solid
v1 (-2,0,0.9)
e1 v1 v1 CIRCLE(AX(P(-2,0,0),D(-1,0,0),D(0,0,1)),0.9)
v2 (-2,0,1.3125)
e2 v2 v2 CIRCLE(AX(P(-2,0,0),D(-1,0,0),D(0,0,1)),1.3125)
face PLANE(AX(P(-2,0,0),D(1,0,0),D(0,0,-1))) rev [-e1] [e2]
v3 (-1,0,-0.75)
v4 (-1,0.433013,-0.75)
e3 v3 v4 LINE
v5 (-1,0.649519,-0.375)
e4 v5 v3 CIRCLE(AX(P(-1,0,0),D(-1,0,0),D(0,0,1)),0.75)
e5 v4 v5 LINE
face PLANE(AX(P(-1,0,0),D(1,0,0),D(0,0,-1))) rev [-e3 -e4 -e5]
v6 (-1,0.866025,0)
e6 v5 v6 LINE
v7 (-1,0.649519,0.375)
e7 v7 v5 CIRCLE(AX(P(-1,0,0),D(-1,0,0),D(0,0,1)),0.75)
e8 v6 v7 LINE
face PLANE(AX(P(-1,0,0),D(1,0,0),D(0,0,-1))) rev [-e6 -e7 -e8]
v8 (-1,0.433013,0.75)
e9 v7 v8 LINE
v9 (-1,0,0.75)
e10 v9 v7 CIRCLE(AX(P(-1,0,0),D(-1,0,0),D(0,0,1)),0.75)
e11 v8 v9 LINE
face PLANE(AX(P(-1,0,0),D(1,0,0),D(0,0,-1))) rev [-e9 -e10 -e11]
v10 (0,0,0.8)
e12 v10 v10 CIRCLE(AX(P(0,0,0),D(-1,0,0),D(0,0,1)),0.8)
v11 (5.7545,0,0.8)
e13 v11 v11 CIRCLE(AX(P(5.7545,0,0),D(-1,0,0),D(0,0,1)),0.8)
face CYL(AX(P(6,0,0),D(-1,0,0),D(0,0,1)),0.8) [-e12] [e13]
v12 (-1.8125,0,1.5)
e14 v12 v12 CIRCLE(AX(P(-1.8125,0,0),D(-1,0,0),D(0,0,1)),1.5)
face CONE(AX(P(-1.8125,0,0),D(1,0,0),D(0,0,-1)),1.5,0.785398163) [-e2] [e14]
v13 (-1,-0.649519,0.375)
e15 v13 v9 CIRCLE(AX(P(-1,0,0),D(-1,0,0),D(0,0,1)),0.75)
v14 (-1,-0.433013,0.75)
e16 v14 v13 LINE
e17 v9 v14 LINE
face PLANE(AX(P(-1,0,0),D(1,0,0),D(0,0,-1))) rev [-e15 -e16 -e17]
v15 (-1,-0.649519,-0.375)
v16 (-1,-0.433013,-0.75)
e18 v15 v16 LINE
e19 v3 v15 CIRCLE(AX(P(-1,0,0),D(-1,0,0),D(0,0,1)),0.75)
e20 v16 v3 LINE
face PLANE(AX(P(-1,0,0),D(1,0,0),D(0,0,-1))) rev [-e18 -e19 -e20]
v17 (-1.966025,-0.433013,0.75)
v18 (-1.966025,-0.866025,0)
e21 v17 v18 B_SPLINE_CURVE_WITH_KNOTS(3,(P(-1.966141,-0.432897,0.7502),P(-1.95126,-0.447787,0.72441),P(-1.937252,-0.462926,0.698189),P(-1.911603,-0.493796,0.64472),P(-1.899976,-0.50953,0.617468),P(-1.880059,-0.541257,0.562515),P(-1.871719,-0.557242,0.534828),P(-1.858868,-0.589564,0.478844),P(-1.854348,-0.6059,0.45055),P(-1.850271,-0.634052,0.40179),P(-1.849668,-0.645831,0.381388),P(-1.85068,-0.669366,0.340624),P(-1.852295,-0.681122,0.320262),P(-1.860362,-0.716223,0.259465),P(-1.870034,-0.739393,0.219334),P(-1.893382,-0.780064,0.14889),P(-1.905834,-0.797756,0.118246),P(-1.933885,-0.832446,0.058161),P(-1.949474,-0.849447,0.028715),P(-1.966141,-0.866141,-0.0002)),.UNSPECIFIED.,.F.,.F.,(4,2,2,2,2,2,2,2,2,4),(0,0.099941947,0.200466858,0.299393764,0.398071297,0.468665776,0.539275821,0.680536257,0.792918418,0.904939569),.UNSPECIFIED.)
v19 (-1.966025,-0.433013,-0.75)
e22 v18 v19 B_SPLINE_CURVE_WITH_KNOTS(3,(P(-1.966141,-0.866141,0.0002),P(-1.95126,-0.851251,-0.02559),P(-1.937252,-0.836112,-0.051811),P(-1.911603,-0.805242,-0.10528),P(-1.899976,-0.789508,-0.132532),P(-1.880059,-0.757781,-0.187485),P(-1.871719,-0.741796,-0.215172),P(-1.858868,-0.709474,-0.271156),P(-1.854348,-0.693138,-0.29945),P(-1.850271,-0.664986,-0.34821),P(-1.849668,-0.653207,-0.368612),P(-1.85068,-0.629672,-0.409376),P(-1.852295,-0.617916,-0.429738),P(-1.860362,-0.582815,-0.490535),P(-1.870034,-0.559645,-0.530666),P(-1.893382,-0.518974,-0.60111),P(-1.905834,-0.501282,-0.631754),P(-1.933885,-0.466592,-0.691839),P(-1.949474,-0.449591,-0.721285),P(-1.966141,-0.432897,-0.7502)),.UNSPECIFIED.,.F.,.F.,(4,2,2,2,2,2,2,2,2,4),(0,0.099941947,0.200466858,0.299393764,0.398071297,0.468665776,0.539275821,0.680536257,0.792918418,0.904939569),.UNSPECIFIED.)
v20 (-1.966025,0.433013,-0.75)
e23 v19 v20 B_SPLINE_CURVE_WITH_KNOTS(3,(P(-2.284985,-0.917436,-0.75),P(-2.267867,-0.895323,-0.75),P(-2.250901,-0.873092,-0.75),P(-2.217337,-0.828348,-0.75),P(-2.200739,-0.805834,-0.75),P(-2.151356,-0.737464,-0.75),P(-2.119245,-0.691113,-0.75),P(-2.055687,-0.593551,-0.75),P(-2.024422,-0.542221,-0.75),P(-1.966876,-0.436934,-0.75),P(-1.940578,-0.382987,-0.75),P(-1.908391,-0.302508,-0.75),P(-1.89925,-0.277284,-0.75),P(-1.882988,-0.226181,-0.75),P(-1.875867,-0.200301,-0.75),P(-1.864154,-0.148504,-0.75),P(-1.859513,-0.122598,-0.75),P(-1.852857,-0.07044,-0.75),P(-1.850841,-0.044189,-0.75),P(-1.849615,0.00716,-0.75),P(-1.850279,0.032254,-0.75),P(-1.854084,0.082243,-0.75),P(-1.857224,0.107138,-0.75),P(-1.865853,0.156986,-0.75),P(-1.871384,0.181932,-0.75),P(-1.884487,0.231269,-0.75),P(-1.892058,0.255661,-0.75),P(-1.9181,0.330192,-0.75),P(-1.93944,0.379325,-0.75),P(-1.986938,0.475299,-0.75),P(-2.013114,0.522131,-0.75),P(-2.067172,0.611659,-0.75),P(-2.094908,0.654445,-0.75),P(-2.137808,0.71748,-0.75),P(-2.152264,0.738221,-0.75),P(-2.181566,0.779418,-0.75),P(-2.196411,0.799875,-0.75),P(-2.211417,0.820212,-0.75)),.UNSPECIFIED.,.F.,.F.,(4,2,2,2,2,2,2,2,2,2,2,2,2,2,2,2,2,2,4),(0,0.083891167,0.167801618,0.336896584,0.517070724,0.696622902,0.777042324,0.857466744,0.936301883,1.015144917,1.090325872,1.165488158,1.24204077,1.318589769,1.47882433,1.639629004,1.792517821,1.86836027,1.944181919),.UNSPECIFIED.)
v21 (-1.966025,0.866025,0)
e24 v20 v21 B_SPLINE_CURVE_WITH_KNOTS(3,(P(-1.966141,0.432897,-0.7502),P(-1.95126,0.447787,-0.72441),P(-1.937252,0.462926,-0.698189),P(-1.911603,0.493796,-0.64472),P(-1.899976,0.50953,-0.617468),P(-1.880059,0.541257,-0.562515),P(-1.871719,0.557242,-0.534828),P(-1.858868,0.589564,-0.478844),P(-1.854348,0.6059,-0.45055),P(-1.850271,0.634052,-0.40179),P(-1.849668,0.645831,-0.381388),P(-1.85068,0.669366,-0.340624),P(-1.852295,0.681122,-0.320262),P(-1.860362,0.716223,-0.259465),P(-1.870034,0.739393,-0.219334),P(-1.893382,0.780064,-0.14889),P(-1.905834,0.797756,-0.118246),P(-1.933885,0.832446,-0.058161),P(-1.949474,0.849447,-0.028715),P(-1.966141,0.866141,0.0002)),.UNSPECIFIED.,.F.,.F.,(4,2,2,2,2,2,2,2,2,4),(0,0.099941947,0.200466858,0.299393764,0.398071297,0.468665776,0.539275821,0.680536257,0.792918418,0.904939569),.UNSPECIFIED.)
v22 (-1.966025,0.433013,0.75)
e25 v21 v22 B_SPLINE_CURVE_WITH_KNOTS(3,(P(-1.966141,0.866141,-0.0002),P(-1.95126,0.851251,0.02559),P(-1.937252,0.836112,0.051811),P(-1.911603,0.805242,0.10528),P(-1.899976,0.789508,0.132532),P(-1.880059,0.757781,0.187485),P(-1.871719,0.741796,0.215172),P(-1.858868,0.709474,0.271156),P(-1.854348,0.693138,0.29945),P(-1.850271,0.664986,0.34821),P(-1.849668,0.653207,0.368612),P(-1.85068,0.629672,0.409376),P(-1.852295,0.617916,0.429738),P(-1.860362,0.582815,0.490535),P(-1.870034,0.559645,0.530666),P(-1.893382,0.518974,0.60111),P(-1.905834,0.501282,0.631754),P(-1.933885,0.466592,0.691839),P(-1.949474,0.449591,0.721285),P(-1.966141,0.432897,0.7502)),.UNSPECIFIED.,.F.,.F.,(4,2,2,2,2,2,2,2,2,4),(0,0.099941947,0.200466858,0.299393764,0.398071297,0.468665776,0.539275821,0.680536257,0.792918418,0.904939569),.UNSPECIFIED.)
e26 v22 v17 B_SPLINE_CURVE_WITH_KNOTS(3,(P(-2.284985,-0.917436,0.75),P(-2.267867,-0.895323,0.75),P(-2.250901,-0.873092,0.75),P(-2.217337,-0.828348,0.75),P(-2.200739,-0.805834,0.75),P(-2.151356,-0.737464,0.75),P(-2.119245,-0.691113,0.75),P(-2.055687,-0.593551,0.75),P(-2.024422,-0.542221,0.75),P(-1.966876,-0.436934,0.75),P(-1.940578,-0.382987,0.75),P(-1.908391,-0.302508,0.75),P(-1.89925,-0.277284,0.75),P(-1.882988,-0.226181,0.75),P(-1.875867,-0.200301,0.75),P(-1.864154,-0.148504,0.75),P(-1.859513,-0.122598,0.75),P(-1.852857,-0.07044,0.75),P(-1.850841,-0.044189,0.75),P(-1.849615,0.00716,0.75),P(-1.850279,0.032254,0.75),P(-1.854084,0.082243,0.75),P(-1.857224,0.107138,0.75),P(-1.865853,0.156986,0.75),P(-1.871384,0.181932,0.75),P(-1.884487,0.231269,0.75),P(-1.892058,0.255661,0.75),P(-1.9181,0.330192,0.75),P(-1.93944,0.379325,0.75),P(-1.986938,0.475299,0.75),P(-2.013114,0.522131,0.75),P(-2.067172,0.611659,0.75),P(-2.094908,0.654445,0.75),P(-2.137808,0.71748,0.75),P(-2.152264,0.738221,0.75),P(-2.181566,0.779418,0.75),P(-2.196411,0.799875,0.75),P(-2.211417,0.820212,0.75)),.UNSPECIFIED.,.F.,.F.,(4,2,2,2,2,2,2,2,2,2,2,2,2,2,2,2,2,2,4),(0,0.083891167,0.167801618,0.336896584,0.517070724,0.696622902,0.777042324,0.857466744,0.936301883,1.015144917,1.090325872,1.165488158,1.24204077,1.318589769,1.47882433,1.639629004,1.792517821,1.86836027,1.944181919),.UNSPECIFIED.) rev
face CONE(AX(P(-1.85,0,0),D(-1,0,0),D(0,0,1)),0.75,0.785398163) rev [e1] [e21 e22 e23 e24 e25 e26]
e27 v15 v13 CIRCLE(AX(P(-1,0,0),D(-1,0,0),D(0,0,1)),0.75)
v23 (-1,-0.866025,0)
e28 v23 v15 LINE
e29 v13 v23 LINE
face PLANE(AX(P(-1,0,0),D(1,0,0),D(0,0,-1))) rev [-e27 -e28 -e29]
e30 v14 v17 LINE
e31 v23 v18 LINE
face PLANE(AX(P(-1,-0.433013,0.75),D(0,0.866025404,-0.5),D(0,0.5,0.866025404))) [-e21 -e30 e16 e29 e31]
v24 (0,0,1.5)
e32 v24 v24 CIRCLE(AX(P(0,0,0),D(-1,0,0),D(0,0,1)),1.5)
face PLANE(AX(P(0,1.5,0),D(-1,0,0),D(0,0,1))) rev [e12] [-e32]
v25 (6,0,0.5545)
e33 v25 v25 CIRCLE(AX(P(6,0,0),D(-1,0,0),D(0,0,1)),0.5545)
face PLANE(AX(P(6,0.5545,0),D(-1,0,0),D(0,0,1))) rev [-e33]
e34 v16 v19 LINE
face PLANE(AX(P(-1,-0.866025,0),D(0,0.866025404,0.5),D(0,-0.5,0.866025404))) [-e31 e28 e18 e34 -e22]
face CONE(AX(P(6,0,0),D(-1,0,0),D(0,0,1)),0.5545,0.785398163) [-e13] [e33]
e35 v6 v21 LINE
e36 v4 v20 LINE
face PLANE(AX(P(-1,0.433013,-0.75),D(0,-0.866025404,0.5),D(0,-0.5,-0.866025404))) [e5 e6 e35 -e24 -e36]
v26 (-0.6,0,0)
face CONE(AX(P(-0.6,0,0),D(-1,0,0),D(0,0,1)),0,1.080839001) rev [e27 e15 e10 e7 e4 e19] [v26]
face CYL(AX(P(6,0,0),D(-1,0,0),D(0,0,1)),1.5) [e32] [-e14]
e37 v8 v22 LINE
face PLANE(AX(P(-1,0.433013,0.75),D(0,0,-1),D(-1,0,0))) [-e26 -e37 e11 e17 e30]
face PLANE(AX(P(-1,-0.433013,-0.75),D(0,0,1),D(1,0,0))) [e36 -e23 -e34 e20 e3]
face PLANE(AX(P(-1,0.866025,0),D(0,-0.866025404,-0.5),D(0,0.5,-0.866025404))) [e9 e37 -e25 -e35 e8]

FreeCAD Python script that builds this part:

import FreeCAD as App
import Part
import Sketcher
from FreeCAD import Vector
Q = App.Units.Quantity

doc = App.newDocument("Part")
body = doc.addObject("PartDesign::Body", "Body")

# Sketch on XY plane
sketch1 = doc.addObject("Sketcher::SketchObject", "Sketch")
body.addObject(sketch1)
sketch1.AttachmentSupport = (doc.XY_Plane, [""])
sketch1.MapMode = "FlatFace"
sketch1.addGeometry(Part.LineSegment(Vector(-2, 1.31, 0), Vector(-2, 0, 0)), False)
sketch1.addGeometry(Part.LineSegment(Vector(-2, 0, 0), Vector(6, 0, 0)), False)
sketch1.addGeometry(Part.LineSegment(Vector(6, 0, 0), Vector(6, 0.55, 0)), False)
sketch1.addGeometry(Part.LineSegment(Vector(6, 0.55, 0), Vector(5.75, 0.8, 0)), False)
sketch1.addGeometry(Part.LineSegment(Vector(5.75, 0.8, 0), Vector(0, 0.8, 0)), False)
sketch1.addGeometry(Part.LineSegment(Vector(0, 0.8, 0), Vector(0, 1.5, 0)), False)
sketch1.addGeometry(Part.LineSegment(Vector(0, 1.5, 0), Vector(-1.81, 1.5, 0)), False)
sketch1.addGeometry(Part.LineSegment(Vector(-1.81, 1.5, 0), Vector(-2, 1.31, 0)), False)
sketch1.addConstraint(Sketcher.Constraint("Coincident", 0, 2, 1, 1))
sketch1.addConstraint(Sketcher.Constraint("Coincident", 1, 2, 2, 1))
sketch1.addConstraint(Sketcher.Constraint("Coincident", 2, 2, 3, 1))
sketch1.addConstraint(Sketcher.Constraint("Coincident", 3, 2, 4, 1))
sketch1.addConstraint(Sketcher.Constraint("Coincident", 4, 2, 5, 1))
sketch1.addConstraint(Sketcher.Constraint("Coincident", 5, 2, 6, 1))
sketch1.addConstraint(Sketcher.Constraint("Coincident", 6, 2, 7, 1))
sketch1.addConstraint(Sketcher.Constraint("Coincident", 7, 2, 0, 1))
sketch1.addConstraint(Sketcher.Constraint("Vertical", 0))
sketch1.addConstraint(Sketcher.Constraint("Horizontal", 1))
sketch1.addConstraint(Sketcher.Constraint("Vertical", 2))
sketch1.addConstraint(Sketcher.Constraint("Horizontal", 4))
sketch1.addConstraint(Sketcher.Constraint("Vertical", 5))
sketch1.addConstraint(Sketcher.Constraint("Horizontal", 6))
sketch1.addConstraint(Sketcher.Constraint("PointOnObject", 0, 2, -1))
sketch1.addConstraint(Sketcher.Constraint("PointOnObject", 4, 2, -2))
sketch1.addConstraint(Sketcher.Constraint("Perpendicular", 3, 7))
sketch1.addConstraint(Sketcher.Constraint("DistanceX", 1, 1, 1, 2, Q("8 mm")))
sketch1.addConstraint(Sketcher.Constraint("Angle", 3, Q("135 deg")))
sketch1.addConstraint(Sketcher.Constraint("DistanceY", 5, 1, 5, 2, Q("0.7 mm")))
sketch1.addConstraint(Sketcher.Constraint("DistanceX", 0, 2, -1, 1, Q("2 mm")))
sketch1.addConstraint(Sketcher.Constraint("DistanceY", -1, 1, 3, 2, Q("0.8 mm")))
sketch1.addConstraint(Sketcher.Constraint("DistanceX", 4, 2, 4, 1, Q("5.7545 mm")))
sketch1.addConstraint(Sketcher.Constraint("DistanceX", 6, 2, 6, 1, Q("1.8125 mm")))
revolution = doc.addObject("PartDesign::Revolution", "Revolution")
body.addObject(revolution)
revolution.Profile = sketch1
revolution.ReferenceAxis = (sketch1, ["H_Axis"])
revolution.Angle = 360

# Sketch on XY plane
sketch2 = doc.addObject("Sketcher::SketchObject", "Sketch001")
body.addObject(sketch2)
sketch2.AttachmentSupport = (doc.XY_Plane, [""])
sketch2.MapMode = "FlatFace"
sketch2.addGeometry(Part.LineSegment(Vector(-2, 0.9, 0), Vector(-2, 0, 0)), False)
sketch2.addGeometry(Part.LineSegment(Vector(-2, 0, 0), Vector(-0.6, 0, 0)), False)
sketch2.addGeometry(Part.LineSegment(Vector(-0.6, 0, 0), Vector(-1, 0.75, 0)), False)
sketch2.addGeometry(Part.LineSegment(Vector(-1, 0.75, 0), Vector(-1.85, 0.75, 0)), False)
sketch2.addGeometry(Part.LineSegment(Vector(-1.85, 0.75, 0), Vector(-2, 0.9, 0)), False)
sketch2.addConstraint(Sketcher.Constraint("Coincident", 0, 2, 1, 1))
sketch2.addConstraint(Sketcher.Constraint("Coincident", 1, 2, 2, 1))
sketch2.addConstraint(Sketcher.Constraint("Coincident", 2, 2, 3, 1))
sketch2.addConstraint(Sketcher.Constraint("Coincident", 3, 2, 4, 1))
sketch2.addConstraint(Sketcher.Constraint("Coincident", 4, 2, 0, 1))
sketch2.addConstraint(Sketcher.Constraint("Vertical", 0))
sketch2.addConstraint(Sketcher.Constraint("Horizontal", 1))
sketch2.addConstraint(Sketcher.Constraint("Horizontal", 3))
sketch2.addConstraint(Sketcher.Constraint("PointOnObject", 0, 2, -1))
sketch2.addConstraint(Sketcher.Constraint("Angle", 4, Q("135 deg")))
sketch2.addConstraint(Sketcher.Constraint("DistanceX", 1, 1, 1, 2, Q("1.4 mm")))
sketch2.addConstraint(Sketcher.Constraint("DistanceY", 0, 2, 0, 1, Q("0.9 mm")))
sketch2.addConstraint(Sketcher.Constraint("DistanceX", 0, 2, -1, 1, Q("2 mm")))
sketch2.addConstraint(Sketcher.Constraint("DistanceX", 2, 2, -1, 1, Q("1 mm")))
sketch2.addConstraint(Sketcher.Constraint("DistanceX", 3, 2, 3, 1, Q("0.85 mm")))
groove = doc.addObject("PartDesign::Groove", "Groove")
body.addObject(groove)
groove.Profile = sketch2
groove.ReferenceAxis = (sketch2, ["H_Axis"])
groove.Angle = 360

# Sketch on YZ plane
sketch3 = doc.addObject("Sketcher::SketchObject", "Sketch002")
body.addObject(sketch3)
sketch3.AttachmentSupport = (doc.YZ_Plane, [""])
sketch3.MapMode = "FlatFace"
sketch3.AttachmentOffset = App.Placement(Vector(0, 0, -2), App.Rotation())
sketch3.addGeometry(Part.LineSegment(Vector(-0.4, 0.8, 0), Vector(-0.9, 0, 0)), False)
sketch3.addGeometry(Part.LineSegment(Vector(-0.9, 0, 0), Vector(-0.4, -0.8, 0)), False)
sketch3.addGeometry(Part.LineSegment(Vector(-0.4, -0.8, 0), Vector(0.4, -0.8, 0)), False)
sketch3.addGeometry(Part.LineSegment(Vector(0.4, -0.8, 0), Vector(0.9, 0, 0)), False)
sketch3.addGeometry(Part.LineSegment(Vector(0.9, 0, 0), Vector(0.4, 0.8, 0)), False)
sketch3.addGeometry(Part.LineSegment(Vector(0.4, 0.8, 0), Vector(-0.4, 0.8, 0)), False)
sketch3.addConstraint(Sketcher.Constraint("Coincident", 0, 2, 1, 1))
sketch3.addConstraint(Sketcher.Constraint("Coincident", 1, 2, 2, 1))
sketch3.addConstraint(Sketcher.Constraint("Coincident", 2, 2, 3, 1))
sketch3.addConstraint(Sketcher.Constraint("Coincident", 3, 2, 4, 1))
sketch3.addConstraint(Sketcher.Constraint("Coincident", 4, 2, 5, 1))
sketch3.addConstraint(Sketcher.Constraint("Coincident", 5, 2, 0, 1))
sketch3.addConstraint(Sketcher.Constraint("Horizontal", 2))
sketch3.addConstraint(Sketcher.Constraint("Horizontal", 5))
sketch3.addConstraint(Sketcher.Constraint("Symmetric", 0, 2, 3, 2, -1, 1))
sketch3.addConstraint(Sketcher.Constraint("Symmetric", 1, 2, 4, 2, -1, 1))
sketch3.addConstraint(Sketcher.Constraint("PointOnObject", 0, 2, -1))
sketch3.addConstraint(Sketcher.Constraint("Parallel", 0, 3))
sketch3.addConstraint(Sketcher.Constraint("Vertical", 2, 2, 4, 2))
sketch3.addConstraint(Sketcher.Constraint("Angle", 0, Q("-120 deg")))
sketch3.addConstraint(Sketcher.Constraint("DistanceY", 2, 2, 4, 2, Q("1.5 mm")))
sketch3.addConstraint(Sketcher.Constraint("DistanceX", 2, 1, 2, 2, Q("0.866025 mm")))
pocket1 = doc.addObject("PartDesign::Pocket", "Pocket")
body.addObject(pocket1)
pocket1.Profile = sketch3
pocket1.Length = 1
pocket1.Reversed = True

doc.recompute()
